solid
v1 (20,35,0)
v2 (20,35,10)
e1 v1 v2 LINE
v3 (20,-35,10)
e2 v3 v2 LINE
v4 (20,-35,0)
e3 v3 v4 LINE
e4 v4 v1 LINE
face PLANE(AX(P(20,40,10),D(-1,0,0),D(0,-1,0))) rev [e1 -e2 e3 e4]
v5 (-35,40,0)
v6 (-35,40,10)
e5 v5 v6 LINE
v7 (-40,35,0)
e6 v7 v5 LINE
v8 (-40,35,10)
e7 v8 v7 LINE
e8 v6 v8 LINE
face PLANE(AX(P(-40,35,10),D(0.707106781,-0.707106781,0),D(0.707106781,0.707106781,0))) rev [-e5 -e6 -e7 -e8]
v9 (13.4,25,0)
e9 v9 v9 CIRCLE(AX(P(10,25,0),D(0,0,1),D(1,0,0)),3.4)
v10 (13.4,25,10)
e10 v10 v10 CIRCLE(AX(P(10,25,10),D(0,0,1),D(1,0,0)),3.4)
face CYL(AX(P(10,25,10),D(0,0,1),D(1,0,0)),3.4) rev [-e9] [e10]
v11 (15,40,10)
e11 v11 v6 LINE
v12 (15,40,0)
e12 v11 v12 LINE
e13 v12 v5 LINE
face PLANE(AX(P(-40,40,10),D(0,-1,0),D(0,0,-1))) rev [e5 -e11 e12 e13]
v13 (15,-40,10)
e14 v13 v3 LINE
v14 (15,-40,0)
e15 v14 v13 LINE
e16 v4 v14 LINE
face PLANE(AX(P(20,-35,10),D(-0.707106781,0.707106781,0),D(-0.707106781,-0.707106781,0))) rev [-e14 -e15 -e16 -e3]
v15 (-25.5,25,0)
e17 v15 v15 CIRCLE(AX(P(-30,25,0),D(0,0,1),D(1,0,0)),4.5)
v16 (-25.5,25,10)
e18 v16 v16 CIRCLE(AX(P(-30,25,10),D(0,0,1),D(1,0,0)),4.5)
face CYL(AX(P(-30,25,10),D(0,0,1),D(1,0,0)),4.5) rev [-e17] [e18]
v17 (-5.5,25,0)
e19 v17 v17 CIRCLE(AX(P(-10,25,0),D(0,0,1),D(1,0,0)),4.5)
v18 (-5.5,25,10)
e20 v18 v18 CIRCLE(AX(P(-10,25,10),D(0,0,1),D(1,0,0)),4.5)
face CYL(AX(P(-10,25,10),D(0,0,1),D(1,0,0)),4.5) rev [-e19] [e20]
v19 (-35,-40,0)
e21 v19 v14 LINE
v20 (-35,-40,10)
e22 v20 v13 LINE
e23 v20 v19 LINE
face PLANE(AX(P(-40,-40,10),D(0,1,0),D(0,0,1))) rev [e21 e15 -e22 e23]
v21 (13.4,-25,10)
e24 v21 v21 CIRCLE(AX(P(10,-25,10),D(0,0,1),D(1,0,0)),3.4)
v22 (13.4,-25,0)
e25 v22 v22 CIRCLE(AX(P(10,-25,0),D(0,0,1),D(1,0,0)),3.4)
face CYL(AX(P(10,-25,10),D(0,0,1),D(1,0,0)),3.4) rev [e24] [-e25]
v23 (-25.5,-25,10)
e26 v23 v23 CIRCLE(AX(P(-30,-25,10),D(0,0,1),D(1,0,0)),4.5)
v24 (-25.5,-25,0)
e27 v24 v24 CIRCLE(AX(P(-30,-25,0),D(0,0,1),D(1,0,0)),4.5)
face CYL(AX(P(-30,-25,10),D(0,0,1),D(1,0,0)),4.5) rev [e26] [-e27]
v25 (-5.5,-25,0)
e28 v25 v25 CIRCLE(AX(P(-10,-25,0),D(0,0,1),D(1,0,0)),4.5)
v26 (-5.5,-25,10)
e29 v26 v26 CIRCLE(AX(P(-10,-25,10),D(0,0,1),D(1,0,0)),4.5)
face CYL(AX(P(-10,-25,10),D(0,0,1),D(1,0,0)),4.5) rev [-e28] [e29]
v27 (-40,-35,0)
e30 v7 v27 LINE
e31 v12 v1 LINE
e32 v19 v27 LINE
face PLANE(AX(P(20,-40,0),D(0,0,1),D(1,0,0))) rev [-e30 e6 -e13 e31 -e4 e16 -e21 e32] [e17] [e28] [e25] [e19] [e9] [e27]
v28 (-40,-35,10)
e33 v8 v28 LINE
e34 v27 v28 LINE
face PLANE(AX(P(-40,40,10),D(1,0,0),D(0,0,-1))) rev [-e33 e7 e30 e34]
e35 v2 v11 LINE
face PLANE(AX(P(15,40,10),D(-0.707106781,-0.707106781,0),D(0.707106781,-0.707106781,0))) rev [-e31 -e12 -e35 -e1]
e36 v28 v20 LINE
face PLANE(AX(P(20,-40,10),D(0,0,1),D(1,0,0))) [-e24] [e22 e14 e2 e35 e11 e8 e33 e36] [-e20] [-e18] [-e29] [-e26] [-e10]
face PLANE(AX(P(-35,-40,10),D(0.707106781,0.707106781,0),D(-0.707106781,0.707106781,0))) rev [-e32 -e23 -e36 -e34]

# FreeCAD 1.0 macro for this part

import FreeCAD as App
import Part
import Sketcher
Q = App.Units.Quantity


def edges_at(feature, points):
    """Names of the edges that pass closest to the given points."""
    edges = feature.Shape.Edges
    near = lambda p: min(range(len(edges)), key=lambda i: edges[i].distToShape(Part.Vertex(*p))[0])
    return sorted({f"Edge{near(p) + 1}" for p in points})


def add_polygon(sketch, points):
    """Adds a closed chain of lines whose ends are joined by coincident constraints."""
    first, n = sketch.GeometryCount, len(points)
    for a, b in zip(points, points[1:] + points[:1]):
        sketch.addGeometry(Part.LineSegment(App.Vector(*a, 0), App.Vector(*b, 0)), False)
    for i in range(n):
        sketch.addConstraint(Sketcher.Constraint("Coincident", first + i, 2, first + (i + 1) % n, 1))

doc = App.newDocument("Part")
body = doc.addObject("PartDesign::Body", "Body")

# Sketch on XY plane
sketch1 = body.newObject("Sketcher::SketchObject", "Sketch")
sketch1.AttachmentSupport = (doc.getObject("XY_Plane"), [""])
sketch1.MapMode = "FlatFace"
add_polygon(sketch1, [(-40, 40), (-40, -40), (20, -40), (20, 40)])  # lines 0-3
sketch1.addConstraint([
    Sketcher.Constraint("Vertical", 0),
    Sketcher.Constraint("Horizontal", 1),
    Sketcher.Constraint("Vertical", 2),
    Sketcher.Constraint("Horizontal", 3),
    Sketcher.Constraint("DistanceX", 1, 1, 1, 2, Q("60 mm")),
    Sketcher.Constraint("DistanceY", 0, 2, 0, 1, Q("80 mm")),
    Sketcher.Constraint("DistanceX", 0, 2, -1, 1, Q("40 mm")),
    Sketcher.Constraint("DistanceY", 0, 2, -1, 1, Q("40 mm")),
])
pad1 = body.newObject("PartDesign::Pad", "Pad")
pad1.Profile = sketch1
pad1.Length = 10
doc.recompute()

chamfer = body.newObject("PartDesign::Chamfer", "Chamfer")
chamfer.Base = (pad1, edges_at(pad1, [
    (20, -40, 5),
    (-40, -40, 5),
    (-40, 40, 5),
    (20, 40, 5),
]))
chamfer.Size = 5

# Sketch on XY plane
sketch2 = body.newObject("Sketcher::SketchObject", "Sketch001")
sketch2.AttachmentSupport = (doc.getObject("XY_Plane"), [""])
sketch2.MapMode = "FlatFace"
sketch2.AttachmentOffset = App.Placement(App.Vector(0, 0, 10), App.Rotation())
sketch2.addGeometry([
    Part.Circle(App.Vector(-30, 25, 0), App.Vector(0, 0, 1), 4.5),
    Part.Circle(App.Vector(-30, -25, 0), App.Vector(0, 0, 1), 4.5),
    Part.Circle(App.Vector(-10, -25, 0), App.Vector(0, 0, 1), 4.5),
    Part.Circle(App.Vector(-10, 25, 0), App.Vector(0, 0, 1), 4.5),
], False)
sketch2.addConstraint([
    Sketcher.Constraint("Equal", 0, 1),
    Sketcher.Constraint("Equal", 1, 2),
    Sketcher.Constraint("Equal", 2, 3),
    Sketcher.Constraint("Symmetric", 0, 3, 1, 3, -1),
    Sketcher.Constraint("Symmetric", 2, 3, 3, 3, -1),
    Sketcher.Constraint("Horizontal", 1, 3, 2, 3),
    Sketcher.Constraint("Diameter", 0, Q("9 mm")),
    Sketcher.Constraint("DistanceX", 0, 3, -1, 1, Q("30 mm")),
    Sketcher.Constraint("DistanceY", -1, 1, 0, 3, Q("25 mm")),
    Sketcher.Constraint("DistanceX", 2, 3, -1, 1, Q("10 mm")),
])
doc.recompute()
hole = body.newObject("PartDesign::Hole", "Hole")
hole.Profile = sketch2
hole.ThreadType = "None"
hole.Diameter = 9
hole.DepthType = "Dimension"
hole.Depth = 34.5
hole.DrillPoint = "Angled"
hole.DrillPointAngle = 118

# Sketch on XY plane
sketch3 = body.newObject("Sketcher::SketchObject", "Sketch002")
sketch3.AttachmentSupport = (doc.getObject("XY_Plane"), [""])
sketch3.MapMode = "FlatFace"
sketch3.AttachmentOffset = App.Placement(App.Vector(0, 0, 10), App.Rotation())
sketch3.addGeometry([
    Part.Circle(App.Vector(10, -25, 0), App.Vector(0, 0, 1), 3.4),
    Part.Circle(App.Vector(10, 25, 0), App.Vector(0, 0, 1), 3.4),
], False)
sketch3.addConstraint([
    Sketcher.Constraint("Equal", 0, 1),
    Sketcher.Constraint("Symmetric", 0, 3, 1, 3, -1),
    Sketcher.Constraint("Diameter", 0, Q("6.8 mm")),
    Sketcher.Constraint("DistanceX", -1, 1, 0, 3, Q("10 mm")),
    Sketcher.Constraint("DistanceY", 0, 3, -1, 1, Q("25 mm")),
])
doc.recompute()
hole2 = body.newObject("PartDesign::Hole", "Hole001")
hole2.Profile = sketch3
hole2.ThreadType = "None"
hole2.Diameter = 6.8
hole2.DepthType = "Dimension"
hole2.Depth = 22.25
hole2.DrillPoint = "Angled"
hole2.DrillPointAngle = 118

doc.recompute()
